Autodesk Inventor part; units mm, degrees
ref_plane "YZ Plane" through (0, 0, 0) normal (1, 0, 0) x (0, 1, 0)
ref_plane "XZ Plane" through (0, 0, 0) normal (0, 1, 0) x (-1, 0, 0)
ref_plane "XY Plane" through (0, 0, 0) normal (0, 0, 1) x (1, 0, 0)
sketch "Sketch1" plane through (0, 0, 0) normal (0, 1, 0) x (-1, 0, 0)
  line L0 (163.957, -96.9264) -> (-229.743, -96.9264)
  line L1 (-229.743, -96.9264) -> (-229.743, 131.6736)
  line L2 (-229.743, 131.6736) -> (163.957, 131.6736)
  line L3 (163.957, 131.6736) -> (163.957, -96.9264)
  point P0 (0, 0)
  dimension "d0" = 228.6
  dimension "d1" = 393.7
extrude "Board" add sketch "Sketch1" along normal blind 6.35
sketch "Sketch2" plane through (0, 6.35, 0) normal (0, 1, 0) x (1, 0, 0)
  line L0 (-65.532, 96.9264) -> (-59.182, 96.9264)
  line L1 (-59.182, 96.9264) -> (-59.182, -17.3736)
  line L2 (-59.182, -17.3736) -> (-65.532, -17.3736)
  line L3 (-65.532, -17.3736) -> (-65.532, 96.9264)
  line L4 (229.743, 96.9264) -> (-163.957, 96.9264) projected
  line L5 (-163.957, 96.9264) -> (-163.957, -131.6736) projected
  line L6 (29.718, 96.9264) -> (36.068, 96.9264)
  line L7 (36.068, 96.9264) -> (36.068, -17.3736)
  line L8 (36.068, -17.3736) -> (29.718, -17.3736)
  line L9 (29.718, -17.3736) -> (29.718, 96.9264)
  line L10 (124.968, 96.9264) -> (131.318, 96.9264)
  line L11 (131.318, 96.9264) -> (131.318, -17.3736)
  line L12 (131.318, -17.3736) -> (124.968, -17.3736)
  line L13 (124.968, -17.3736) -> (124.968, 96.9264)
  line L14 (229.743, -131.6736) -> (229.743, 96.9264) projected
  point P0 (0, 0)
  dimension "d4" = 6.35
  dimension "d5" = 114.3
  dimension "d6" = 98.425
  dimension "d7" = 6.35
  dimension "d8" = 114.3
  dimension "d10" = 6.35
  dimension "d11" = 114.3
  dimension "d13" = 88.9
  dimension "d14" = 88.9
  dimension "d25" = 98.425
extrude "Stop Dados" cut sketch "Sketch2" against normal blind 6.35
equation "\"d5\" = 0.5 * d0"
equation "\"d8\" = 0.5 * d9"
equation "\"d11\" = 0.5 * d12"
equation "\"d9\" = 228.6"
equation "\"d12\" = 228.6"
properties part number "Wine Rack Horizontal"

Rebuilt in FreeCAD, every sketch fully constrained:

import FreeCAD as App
import Part
import Sketcher
Q = App.Units.Quantity


def add_polygon(sketch, points):
    """Adds a closed chain of lines whose ends are joined by coincident constraints."""
    first, n = sketch.GeometryCount, len(points)
    for a, b in zip(points, points[1:] + points[:1]):
        sketch.addGeometry(Part.LineSegment(App.Vector(*a, 0), App.Vector(*b, 0)), False)
    for i in range(n):
        sketch.addConstraint(Sketcher.Constraint("Coincident", first + i, 2, first + (i + 1) % n, 1))

doc = App.newDocument("Part")
body = doc.addObject("PartDesign::Body", "Body")

# Sketch on XZ plane
sketch1 = doc.addObject("Sketcher::SketchObject", "Sketch")
body.addObject(sketch1)
sketch1.AttachmentSupport = (doc.XZ_Plane, [""])
sketch1.MapMode = "FlatFace"
add_polygon(sketch1, [(230, -97), (-164, -97), (-164, 132), (230, 132)])  # lines 0-3
sketch1.addConstraint([
    Sketcher.Constraint("Horizontal", 0),
    Sketcher.Constraint("Vertical", 1),
    Sketcher.Constraint("Horizontal", 2),
    Sketcher.Constraint("Vertical", 3),
    Sketcher.Constraint("DistanceY", 1, 1, 1, 2, Q("9 in")),
    Sketcher.Constraint("DistanceX", 0, 2, 0, 1, Q("15.5 in")),
    Sketcher.Constraint("DistanceX", 0, 2, -1, 1, Q("6.455 in")),
    Sketcher.Constraint("DistanceY", 0, 2, -1, 1, Q("3.816 in")),
])
pad1 = doc.addObject("PartDesign::Pad", "Pad")
body.addObject(pad1)
pad1.Profile = sketch1
pad1.Length = Q("0.25 in")
pad1.Reversed = True

# Sketch on XZ plane
sketch2 = doc.addObject("Sketcher::SketchObject", "Sketch001")
body.addObject(sketch2)
sketch2.AttachmentSupport = (doc.XZ_Plane, [""])
sketch2.MapMode = "FlatFace"
sketch2.AttachmentOffset = App.Placement(App.Vector(0, 0, -0.25 * 25.4), App.Rotation())
add_polygon(sketch2, [(131, -97), (125, -97), (125, 17), (131, 17)])  # lines 0-3
add_polygon(sketch2, [(36, -97), (30, -97), (30, 17), (36, 17)])  # lines 4-7
add_polygon(sketch2, [(-59, -97), (-66, -97), (-66, 17), (-59, 17)])  # lines 8-11
sketch2.addConstraint([
    Sketcher.Constraint("Horizontal", 0),
    Sketcher.Constraint("Vertical", 1),
    Sketcher.Constraint("Horizontal", 2),
    Sketcher.Constraint("Vertical", 3),
    Sketcher.Constraint("Horizontal", 4),
    Sketcher.Constraint("Vertical", 5),
    Sketcher.Constraint("Horizontal", 6),
    Sketcher.Constraint("Vertical", 7),
    Sketcher.Constraint("Horizontal", 8),
    Sketcher.Constraint("Vertical", 9),
    Sketcher.Constraint("Horizontal", 10),
    Sketcher.Constraint("Vertical", 11),
    Sketcher.Constraint("Horizontal", 3, 2, 4, 2),
    Sketcher.Constraint("Horizontal", 2, 2, 5, 2),
    Sketcher.Constraint("Horizontal", 7, 2, 8, 2),
    Sketcher.Constraint("Horizontal", 6, 2, 9, 2),
    Sketcher.Constraint("Equal", 2, 4),
    Sketcher.Constraint("Equal", 6, 8),
    Sketcher.Constraint("DistanceY", 1, 1, 1, 2, Q("4.5 in")),
    Sketcher.Constraint("DistanceX", 0, 2, 0, 1, Q("0.25 in")),
    Sketcher.Constraint("DistanceX", 6, 2, 1, 2, Q("3.5 in")),
    Sketcher.Constraint("DistanceX", 10, 2, 5, 2, Q("3.5 in")),
    Sketcher.Constraint("DistanceX", -1, 1, 0, 2, Q("4.92 in")),
    Sketcher.Constraint("DistanceY", 0, 2, -1, 1, Q("3.816 in")),
])
pocket1 = doc.addObject("PartDesign::Pocket", "Pocket")
body.addObject(pocket1)
pocket1.Profile = sketch2
pocket1.Length = Q("0.25 in")
pocket1.Reversed = True

doc.recompute()
